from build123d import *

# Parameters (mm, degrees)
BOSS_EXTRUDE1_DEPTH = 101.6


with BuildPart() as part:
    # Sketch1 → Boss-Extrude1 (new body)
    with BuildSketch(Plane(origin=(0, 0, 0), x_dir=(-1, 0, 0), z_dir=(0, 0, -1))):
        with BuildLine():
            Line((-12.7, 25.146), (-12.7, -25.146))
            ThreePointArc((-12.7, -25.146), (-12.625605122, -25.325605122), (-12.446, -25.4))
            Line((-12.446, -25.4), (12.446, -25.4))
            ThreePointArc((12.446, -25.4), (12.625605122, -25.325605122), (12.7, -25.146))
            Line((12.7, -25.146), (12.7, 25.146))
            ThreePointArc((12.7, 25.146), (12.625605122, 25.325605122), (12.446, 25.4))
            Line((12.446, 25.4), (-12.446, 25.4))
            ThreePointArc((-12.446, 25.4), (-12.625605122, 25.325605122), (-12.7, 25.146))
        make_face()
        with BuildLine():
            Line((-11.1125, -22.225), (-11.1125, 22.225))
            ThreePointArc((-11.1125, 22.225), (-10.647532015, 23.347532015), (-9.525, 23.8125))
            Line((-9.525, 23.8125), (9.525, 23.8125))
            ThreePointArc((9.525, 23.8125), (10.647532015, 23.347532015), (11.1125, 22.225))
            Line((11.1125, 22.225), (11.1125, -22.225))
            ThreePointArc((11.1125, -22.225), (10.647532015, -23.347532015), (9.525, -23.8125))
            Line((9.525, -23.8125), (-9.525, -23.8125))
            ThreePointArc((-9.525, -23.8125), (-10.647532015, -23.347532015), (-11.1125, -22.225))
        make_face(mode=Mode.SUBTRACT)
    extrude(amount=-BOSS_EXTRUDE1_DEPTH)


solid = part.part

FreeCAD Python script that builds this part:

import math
import FreeCAD as App
import Part
import Sketcher
from FreeCAD import Vector
Q = App.Units.Quantity

doc = App.newDocument("Part")
body = doc.addObject("PartDesign::Body", "Body")

# Sketch on XY plane
sketch1 = doc.addObject("Sketcher::SketchObject", "Sketch")
body.addObject(sketch1)
sketch1.AttachmentSupport = (doc.XY_Plane, [""])
sketch1.MapMode = "FlatFace"
sketch1.addGeometry([
    Part.LineSegment(Vector(12.7, 25.15, 0), Vector(12.7, -25.15, 0)),  # 0
    Part.ArcOfCircle(Part.Circle(Vector(12.45, -25.15, 0), Vector(0, 0, 1), 0.25), math.radians(-90), math.radians(0)),  # 1
    Part.LineSegment(Vector(12.45, -25.4, 0), Vector(-12.45, -25.4, 0)),  # 2
    Part.ArcOfCircle(Part.Circle(Vector(-12.45, -25.15, 0), Vector(0, 0, 1), 0.25), math.radians(-180), math.radians(-90)),  # 3
    Part.LineSegment(Vector(-12.7, -25.15, 0), Vector(-12.7, 25.15, 0)),  # 4
    Part.ArcOfCircle(Part.Circle(Vector(-12.45, 25.15, 0), Vector(0, 0, 1), 0.25), math.radians(90), math.radians(180)),  # 5
    Part.LineSegment(Vector(-12.45, 25.4, 0), Vector(12.45, 25.4, 0)),  # 6
    Part.ArcOfCircle(Part.Circle(Vector(12.45, 25.15, 0), Vector(0, 0, 1), 0.25), math.radians(0), math.radians(90)),  # 7
    Part.ArcOfCircle(Part.Circle(Vector(9.53, -22.23, 0), Vector(0, 0, 1), 1.59), math.radians(-90), math.radians(0)),  # 8
    Part.LineSegment(Vector(11.11, -22.23, 0), Vector(11.11, 22.23, 0)),  # 9
    Part.ArcOfCircle(Part.Circle(Vector(9.53, 22.23, 0), Vector(0, 0, 1), 1.59), math.radians(0), math.radians(90)),  # 10
    Part.LineSegment(Vector(9.53, 23.81, 0), Vector(-9.53, 23.81, 0)),  # 11
    Part.ArcOfCircle(Part.Circle(Vector(-9.53, 22.23, 0), Vector(0, 0, 1), 1.59), math.radians(90), math.radians(180)),  # 12
    Part.LineSegment(Vector(-11.11, 22.23, 0), Vector(-11.11, -22.23, 0)),  # 13
    Part.ArcOfCircle(Part.Circle(Vector(-9.53, -22.23, 0), Vector(0, 0, 1), 1.59), math.radians(180), math.radians(270)),  # 14
    Part.LineSegment(Vector(-9.53, -23.81, 0), Vector(9.53, -23.81, 0)),  # 15
], False)
sketch1.addConstraint([
    Sketcher.Constraint("Tangent", 0, 2, 1, 2),
    Sketcher.Constraint("Tangent", 1, 1, 2, 1),
    Sketcher.Constraint("Tangent", 2, 2, 3, 2),
    Sketcher.Constraint("Tangent", 3, 1, 4, 1),
    Sketcher.Constraint("Tangent", 4, 2, 5, 2),
    Sketcher.Constraint("Tangent", 5, 1, 6, 1),
    Sketcher.Constraint("Tangent", 6, 2, 7, 2),
    Sketcher.Constraint("Tangent", 7, 1, 0, 1),
    Sketcher.Constraint("Tangent", 8, 2, 9, 1),
    Sketcher.Constraint("Tangent", 9, 2, 10, 1),
    Sketcher.Constraint("Tangent", 10, 2, 11, 1),
    Sketcher.Constraint("Tangent", 11, 2, 12, 1),
    Sketcher.Constraint("Tangent", 12, 2, 13, 1),
    Sketcher.Constraint("Tangent", 13, 2, 14, 1),
    Sketcher.Constraint("Tangent", 14, 2, 15, 1),
    Sketcher.Constraint("Tangent", 15, 2, 8, 1),
    Sketcher.Constraint("Vertical", 0),
    Sketcher.Constraint("Horizontal", 2),
    Sketcher.Constraint("Vertical", 4),
    Sketcher.Constraint("Horizontal", 6),
    Sketcher.Constraint("Vertical", 9),
    Sketcher.Constraint("Horizontal", 11),
    Sketcher.Constraint("Vertical", 13),
    Sketcher.Constraint("Horizontal", 15),
    Sketcher.Constraint("Equal", 1, 3),
    Sketcher.Constraint("Equal", 3, 5),
    Sketcher.Constraint("Equal", 5, 7),
    Sketcher.Constraint("Equal", 8, 10),
    Sketcher.Constraint("Equal", 10, 12),
    Sketcher.Constraint("Equal", 12, 14),
    Sketcher.Constraint("Symmetric", 1, 3, 5, 3, -1, 1),
    Sketcher.Constraint("Symmetric", 8, 3, 12, 3, -1, 1),
    Sketcher.Constraint("Radius", 1, Q("0.01 in")),
    Sketcher.Constraint("DistanceY", 1, 1, -1, 1, Q("1 in")),
    Sketcher.Constraint("Radius", 8, Q("0.0625 in")),
    Sketcher.Constraint("DistanceX", 2, 2, 2, 1, Q("0.98 in")),
    Sketcher.Constraint("DistanceX", 11, 2, 11, 1, Q("0.75 in")),
    Sketcher.Constraint("DistanceY", 9, 1, 9, 2, Q("1.75 in")),
])
pad1 = doc.addObject("PartDesign::Pad", "Pad")
body.addObject(pad1)
pad1.Profile = sketch1
pad1.Length = Q("4 in")

doc.recompute()
